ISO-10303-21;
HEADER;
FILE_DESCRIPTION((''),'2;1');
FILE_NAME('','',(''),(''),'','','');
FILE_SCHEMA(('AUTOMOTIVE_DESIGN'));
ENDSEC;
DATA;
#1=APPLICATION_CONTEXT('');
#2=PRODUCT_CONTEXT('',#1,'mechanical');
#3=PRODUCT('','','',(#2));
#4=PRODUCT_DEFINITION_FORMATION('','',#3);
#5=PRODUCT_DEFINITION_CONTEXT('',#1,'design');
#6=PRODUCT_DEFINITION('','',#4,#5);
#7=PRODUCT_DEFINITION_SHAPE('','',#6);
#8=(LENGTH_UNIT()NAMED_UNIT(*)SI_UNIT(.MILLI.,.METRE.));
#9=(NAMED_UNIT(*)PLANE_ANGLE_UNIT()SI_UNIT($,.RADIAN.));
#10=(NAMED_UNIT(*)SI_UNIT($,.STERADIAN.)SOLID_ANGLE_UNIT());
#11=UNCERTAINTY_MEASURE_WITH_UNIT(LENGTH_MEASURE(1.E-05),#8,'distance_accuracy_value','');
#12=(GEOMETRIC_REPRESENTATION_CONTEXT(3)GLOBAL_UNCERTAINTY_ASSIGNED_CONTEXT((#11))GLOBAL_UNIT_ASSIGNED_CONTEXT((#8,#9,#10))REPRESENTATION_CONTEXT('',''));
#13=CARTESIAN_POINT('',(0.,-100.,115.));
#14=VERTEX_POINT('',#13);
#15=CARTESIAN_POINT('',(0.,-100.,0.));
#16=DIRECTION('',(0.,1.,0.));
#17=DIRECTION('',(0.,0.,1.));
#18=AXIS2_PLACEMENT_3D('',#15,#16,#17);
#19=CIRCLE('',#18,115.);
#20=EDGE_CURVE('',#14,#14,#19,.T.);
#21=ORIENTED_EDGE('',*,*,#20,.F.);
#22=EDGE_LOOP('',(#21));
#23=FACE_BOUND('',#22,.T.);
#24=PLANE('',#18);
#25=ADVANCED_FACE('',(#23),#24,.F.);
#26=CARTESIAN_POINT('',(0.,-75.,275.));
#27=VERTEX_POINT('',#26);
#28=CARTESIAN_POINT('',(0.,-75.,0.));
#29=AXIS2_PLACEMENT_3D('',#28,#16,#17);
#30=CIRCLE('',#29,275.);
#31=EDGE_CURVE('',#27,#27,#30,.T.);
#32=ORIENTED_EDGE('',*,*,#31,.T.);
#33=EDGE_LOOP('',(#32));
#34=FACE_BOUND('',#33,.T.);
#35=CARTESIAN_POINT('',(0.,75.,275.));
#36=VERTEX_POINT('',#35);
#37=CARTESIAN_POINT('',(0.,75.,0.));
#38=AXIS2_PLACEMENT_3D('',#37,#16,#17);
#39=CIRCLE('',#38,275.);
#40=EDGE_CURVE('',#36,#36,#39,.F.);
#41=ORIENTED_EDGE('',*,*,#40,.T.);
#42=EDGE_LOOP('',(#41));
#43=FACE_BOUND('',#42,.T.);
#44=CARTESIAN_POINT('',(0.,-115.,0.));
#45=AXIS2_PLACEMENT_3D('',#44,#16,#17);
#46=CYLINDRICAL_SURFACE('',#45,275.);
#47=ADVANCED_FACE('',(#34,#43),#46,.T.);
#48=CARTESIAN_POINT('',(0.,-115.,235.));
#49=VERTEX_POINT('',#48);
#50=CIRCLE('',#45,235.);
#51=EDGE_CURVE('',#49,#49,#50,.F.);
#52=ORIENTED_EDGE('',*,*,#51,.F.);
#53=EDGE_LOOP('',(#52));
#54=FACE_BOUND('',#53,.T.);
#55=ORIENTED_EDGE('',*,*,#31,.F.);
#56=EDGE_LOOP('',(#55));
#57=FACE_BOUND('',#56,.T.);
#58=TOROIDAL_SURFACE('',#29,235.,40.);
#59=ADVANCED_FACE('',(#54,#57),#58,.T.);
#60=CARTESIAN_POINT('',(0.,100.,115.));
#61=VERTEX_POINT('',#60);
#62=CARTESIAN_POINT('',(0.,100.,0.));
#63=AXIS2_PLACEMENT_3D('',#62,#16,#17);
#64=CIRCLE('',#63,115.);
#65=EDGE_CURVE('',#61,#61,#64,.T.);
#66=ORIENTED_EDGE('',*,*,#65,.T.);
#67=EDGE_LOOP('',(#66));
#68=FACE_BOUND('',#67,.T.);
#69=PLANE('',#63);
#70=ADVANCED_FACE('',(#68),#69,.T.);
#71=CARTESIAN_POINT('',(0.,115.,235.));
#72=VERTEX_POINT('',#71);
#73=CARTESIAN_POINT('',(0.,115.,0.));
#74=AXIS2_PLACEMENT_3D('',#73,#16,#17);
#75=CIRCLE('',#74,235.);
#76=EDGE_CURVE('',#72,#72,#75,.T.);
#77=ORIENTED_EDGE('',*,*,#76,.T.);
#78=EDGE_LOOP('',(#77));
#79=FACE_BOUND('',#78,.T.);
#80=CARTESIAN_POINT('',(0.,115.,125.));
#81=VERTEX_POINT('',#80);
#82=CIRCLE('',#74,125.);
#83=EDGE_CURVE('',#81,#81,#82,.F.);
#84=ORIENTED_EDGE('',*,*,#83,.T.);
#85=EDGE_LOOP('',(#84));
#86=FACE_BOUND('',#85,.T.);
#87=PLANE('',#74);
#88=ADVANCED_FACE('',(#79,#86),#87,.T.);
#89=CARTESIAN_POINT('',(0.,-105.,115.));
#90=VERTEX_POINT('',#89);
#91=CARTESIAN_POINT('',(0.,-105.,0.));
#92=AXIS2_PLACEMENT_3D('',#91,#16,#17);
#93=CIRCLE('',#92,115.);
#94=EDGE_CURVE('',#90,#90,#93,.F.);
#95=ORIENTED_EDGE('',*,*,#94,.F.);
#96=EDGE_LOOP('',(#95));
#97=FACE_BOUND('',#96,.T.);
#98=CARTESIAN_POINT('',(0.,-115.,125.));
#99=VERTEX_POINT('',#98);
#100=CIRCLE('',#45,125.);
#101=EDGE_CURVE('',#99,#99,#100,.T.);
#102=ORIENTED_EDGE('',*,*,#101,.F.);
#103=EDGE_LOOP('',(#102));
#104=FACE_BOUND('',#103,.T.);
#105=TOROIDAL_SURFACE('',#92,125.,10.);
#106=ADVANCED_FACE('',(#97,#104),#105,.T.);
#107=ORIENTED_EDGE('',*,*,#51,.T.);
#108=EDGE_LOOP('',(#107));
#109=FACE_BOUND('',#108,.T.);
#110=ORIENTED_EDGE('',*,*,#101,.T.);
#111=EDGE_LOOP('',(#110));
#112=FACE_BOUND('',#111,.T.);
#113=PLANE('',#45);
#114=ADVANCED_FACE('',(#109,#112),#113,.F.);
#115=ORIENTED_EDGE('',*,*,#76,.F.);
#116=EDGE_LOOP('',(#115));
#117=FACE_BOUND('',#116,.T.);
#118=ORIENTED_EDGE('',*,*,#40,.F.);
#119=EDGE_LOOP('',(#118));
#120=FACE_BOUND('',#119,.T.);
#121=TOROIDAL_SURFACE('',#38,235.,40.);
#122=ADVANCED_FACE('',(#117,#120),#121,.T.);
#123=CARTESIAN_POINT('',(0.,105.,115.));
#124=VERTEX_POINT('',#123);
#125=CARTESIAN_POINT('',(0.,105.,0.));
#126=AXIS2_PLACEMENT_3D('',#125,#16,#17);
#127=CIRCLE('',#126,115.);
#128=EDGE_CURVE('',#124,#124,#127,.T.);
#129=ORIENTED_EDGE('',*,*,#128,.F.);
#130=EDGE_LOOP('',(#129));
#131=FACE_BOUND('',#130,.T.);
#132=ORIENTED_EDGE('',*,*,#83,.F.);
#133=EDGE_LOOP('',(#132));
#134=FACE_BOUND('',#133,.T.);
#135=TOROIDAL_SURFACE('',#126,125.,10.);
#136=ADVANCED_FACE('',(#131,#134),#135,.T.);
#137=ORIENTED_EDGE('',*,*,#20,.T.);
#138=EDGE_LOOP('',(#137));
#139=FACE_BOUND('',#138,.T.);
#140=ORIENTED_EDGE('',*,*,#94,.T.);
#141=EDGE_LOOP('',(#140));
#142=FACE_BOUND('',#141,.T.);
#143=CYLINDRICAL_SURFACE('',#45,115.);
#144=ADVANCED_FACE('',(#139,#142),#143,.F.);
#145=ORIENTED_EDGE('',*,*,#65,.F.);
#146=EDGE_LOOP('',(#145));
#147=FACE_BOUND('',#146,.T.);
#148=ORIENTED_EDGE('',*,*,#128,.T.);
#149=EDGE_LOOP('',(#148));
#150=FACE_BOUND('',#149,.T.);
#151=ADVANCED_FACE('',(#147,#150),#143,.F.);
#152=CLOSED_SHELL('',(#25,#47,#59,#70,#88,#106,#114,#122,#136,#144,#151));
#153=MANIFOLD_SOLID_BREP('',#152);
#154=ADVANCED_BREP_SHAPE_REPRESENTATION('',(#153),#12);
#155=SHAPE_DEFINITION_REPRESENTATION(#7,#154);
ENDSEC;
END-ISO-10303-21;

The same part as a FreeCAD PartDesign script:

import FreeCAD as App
import Part
import Sketcher
Q = App.Units.Quantity


def edges_at(feature, points):
    """Names of the edges that pass closest to the given points."""
    edges = feature.Shape.Edges
    near = lambda p: min(range(len(edges)), key=lambda i: edges[i].distToShape(Part.Vertex(*p))[0])
    return sorted({f"Edge{near(p) + 1}" for p in points})

doc = App.newDocument("Part")
params = doc.addObject("Spreadsheet::Sheet", "Params")
for row, (alias, value) in enumerate([
    ("sketch1_diameter", "240 mm"),
    ("pad1_length", "100 mm"),
    ("pad1_length2", "100 mm"),
    ("sketch2_diameter", "550 mm"),
    ("sketch2_diameter2", "230 mm"),
    ("pad2_length", "115 mm"),
    ("pad2_length2", "115 mm"),
    ("fillet_radius", "40 mm"),
    ("fillet2_radius", "10 mm"),
    ("fillet3_radius", "10 mm"),
], start=1):
    params.set(f"A{row}", alias)
    params.set(f"B{row}", "=" + value)
    params.setAlias(f"B{row}", alias)

body = doc.addObject("PartDesign::Body", "Body")

# Sketch on XZ plane
sketch1 = body.newObject("Sketcher::SketchObject", "Sketch")
sketch1.AttachmentSupport = (doc.getObject("XZ_Plane"), [""])
sketch1.MapMode = "FlatFace"
sketch1.addGeometry(Part.Circle(App.Vector(0, 0, 0), App.Vector(0, 0, 1), 120), False)
sketch1.addConstraint([
    Sketcher.Constraint("Coincident", 0, 3, -1, 1),
    Sketcher.Constraint("Diameter", 0, Q("240 mm")),
])
sketch1.setExpression("Constraints[1]", "Params.sketch1_diameter")
pad1 = body.newObject("PartDesign::Pad", "Pad")
pad1.Profile = sketch1
pad1.Type = "TwoLengths"
pad1.setExpression("Length", "Params.pad1_length")
pad1.setExpression("Length2", "Params.pad1_length2")
pad1.Reversed = True

# Sketch on XZ plane
sketch2 = body.newObject("Sketcher::SketchObject", "Sketch001")
sketch2.AttachmentSupport = (doc.getObject("XZ_Plane"), [""])
sketch2.MapMode = "FlatFace"
sketch2.addGeometry([
    Part.Circle(App.Vector(0, 0, 0), App.Vector(0, 0, 1), 275),
    Part.Circle(App.Vector(0, 0, 0), App.Vector(0, 0, 1), 115),
], False)
sketch2.addConstraint([
    Sketcher.Constraint("Coincident", 0, 3, -1, 1),
    Sketcher.Constraint("Coincident", 1, 3, -1, 1),
    Sketcher.Constraint("Diameter", 0, Q("550 mm")),
    Sketcher.Constraint("Diameter", 1, Q("230 mm")),
])
sketch2.setExpression("Constraints[2]", "Params.sketch2_diameter")
sketch2.setExpression("Constraints[3]", "Params.sketch2_diameter2")
pad2 = body.newObject("PartDesign::Pad", "Pad001")
pad2.Profile = sketch2
pad2.Type = "TwoLengths"
pad2.setExpression("Length", "Params.pad2_length")
pad2.setExpression("Length2", "Params.pad2_length2")
pad2.Reversed = True
doc.recompute()

fillet = body.newObject("PartDesign::Fillet", "Fillet")
fillet.Base = (pad2, edges_at(pad2, [(0, 115, -275), (0, -115, -275)]))
fillet.setExpression("Radius", "Params.fillet_radius")
doc.recompute()

fillet2 = body.newObject("PartDesign::Fillet", "Fillet001")
fillet2.Base = (fillet, edges_at(fillet, [(0, -115, -115)]))
fillet2.setExpression("Radius", "Params.fillet2_radius")
doc.recompute()

fillet3 = body.newObject("PartDesign::Fillet", "Fillet002")
fillet3.Base = (fillet2, edges_at(fillet2, [(0, 115, -115)]))
fillet3.setExpression("Radius", "Params.fillet3_radius")

doc.recompute()
